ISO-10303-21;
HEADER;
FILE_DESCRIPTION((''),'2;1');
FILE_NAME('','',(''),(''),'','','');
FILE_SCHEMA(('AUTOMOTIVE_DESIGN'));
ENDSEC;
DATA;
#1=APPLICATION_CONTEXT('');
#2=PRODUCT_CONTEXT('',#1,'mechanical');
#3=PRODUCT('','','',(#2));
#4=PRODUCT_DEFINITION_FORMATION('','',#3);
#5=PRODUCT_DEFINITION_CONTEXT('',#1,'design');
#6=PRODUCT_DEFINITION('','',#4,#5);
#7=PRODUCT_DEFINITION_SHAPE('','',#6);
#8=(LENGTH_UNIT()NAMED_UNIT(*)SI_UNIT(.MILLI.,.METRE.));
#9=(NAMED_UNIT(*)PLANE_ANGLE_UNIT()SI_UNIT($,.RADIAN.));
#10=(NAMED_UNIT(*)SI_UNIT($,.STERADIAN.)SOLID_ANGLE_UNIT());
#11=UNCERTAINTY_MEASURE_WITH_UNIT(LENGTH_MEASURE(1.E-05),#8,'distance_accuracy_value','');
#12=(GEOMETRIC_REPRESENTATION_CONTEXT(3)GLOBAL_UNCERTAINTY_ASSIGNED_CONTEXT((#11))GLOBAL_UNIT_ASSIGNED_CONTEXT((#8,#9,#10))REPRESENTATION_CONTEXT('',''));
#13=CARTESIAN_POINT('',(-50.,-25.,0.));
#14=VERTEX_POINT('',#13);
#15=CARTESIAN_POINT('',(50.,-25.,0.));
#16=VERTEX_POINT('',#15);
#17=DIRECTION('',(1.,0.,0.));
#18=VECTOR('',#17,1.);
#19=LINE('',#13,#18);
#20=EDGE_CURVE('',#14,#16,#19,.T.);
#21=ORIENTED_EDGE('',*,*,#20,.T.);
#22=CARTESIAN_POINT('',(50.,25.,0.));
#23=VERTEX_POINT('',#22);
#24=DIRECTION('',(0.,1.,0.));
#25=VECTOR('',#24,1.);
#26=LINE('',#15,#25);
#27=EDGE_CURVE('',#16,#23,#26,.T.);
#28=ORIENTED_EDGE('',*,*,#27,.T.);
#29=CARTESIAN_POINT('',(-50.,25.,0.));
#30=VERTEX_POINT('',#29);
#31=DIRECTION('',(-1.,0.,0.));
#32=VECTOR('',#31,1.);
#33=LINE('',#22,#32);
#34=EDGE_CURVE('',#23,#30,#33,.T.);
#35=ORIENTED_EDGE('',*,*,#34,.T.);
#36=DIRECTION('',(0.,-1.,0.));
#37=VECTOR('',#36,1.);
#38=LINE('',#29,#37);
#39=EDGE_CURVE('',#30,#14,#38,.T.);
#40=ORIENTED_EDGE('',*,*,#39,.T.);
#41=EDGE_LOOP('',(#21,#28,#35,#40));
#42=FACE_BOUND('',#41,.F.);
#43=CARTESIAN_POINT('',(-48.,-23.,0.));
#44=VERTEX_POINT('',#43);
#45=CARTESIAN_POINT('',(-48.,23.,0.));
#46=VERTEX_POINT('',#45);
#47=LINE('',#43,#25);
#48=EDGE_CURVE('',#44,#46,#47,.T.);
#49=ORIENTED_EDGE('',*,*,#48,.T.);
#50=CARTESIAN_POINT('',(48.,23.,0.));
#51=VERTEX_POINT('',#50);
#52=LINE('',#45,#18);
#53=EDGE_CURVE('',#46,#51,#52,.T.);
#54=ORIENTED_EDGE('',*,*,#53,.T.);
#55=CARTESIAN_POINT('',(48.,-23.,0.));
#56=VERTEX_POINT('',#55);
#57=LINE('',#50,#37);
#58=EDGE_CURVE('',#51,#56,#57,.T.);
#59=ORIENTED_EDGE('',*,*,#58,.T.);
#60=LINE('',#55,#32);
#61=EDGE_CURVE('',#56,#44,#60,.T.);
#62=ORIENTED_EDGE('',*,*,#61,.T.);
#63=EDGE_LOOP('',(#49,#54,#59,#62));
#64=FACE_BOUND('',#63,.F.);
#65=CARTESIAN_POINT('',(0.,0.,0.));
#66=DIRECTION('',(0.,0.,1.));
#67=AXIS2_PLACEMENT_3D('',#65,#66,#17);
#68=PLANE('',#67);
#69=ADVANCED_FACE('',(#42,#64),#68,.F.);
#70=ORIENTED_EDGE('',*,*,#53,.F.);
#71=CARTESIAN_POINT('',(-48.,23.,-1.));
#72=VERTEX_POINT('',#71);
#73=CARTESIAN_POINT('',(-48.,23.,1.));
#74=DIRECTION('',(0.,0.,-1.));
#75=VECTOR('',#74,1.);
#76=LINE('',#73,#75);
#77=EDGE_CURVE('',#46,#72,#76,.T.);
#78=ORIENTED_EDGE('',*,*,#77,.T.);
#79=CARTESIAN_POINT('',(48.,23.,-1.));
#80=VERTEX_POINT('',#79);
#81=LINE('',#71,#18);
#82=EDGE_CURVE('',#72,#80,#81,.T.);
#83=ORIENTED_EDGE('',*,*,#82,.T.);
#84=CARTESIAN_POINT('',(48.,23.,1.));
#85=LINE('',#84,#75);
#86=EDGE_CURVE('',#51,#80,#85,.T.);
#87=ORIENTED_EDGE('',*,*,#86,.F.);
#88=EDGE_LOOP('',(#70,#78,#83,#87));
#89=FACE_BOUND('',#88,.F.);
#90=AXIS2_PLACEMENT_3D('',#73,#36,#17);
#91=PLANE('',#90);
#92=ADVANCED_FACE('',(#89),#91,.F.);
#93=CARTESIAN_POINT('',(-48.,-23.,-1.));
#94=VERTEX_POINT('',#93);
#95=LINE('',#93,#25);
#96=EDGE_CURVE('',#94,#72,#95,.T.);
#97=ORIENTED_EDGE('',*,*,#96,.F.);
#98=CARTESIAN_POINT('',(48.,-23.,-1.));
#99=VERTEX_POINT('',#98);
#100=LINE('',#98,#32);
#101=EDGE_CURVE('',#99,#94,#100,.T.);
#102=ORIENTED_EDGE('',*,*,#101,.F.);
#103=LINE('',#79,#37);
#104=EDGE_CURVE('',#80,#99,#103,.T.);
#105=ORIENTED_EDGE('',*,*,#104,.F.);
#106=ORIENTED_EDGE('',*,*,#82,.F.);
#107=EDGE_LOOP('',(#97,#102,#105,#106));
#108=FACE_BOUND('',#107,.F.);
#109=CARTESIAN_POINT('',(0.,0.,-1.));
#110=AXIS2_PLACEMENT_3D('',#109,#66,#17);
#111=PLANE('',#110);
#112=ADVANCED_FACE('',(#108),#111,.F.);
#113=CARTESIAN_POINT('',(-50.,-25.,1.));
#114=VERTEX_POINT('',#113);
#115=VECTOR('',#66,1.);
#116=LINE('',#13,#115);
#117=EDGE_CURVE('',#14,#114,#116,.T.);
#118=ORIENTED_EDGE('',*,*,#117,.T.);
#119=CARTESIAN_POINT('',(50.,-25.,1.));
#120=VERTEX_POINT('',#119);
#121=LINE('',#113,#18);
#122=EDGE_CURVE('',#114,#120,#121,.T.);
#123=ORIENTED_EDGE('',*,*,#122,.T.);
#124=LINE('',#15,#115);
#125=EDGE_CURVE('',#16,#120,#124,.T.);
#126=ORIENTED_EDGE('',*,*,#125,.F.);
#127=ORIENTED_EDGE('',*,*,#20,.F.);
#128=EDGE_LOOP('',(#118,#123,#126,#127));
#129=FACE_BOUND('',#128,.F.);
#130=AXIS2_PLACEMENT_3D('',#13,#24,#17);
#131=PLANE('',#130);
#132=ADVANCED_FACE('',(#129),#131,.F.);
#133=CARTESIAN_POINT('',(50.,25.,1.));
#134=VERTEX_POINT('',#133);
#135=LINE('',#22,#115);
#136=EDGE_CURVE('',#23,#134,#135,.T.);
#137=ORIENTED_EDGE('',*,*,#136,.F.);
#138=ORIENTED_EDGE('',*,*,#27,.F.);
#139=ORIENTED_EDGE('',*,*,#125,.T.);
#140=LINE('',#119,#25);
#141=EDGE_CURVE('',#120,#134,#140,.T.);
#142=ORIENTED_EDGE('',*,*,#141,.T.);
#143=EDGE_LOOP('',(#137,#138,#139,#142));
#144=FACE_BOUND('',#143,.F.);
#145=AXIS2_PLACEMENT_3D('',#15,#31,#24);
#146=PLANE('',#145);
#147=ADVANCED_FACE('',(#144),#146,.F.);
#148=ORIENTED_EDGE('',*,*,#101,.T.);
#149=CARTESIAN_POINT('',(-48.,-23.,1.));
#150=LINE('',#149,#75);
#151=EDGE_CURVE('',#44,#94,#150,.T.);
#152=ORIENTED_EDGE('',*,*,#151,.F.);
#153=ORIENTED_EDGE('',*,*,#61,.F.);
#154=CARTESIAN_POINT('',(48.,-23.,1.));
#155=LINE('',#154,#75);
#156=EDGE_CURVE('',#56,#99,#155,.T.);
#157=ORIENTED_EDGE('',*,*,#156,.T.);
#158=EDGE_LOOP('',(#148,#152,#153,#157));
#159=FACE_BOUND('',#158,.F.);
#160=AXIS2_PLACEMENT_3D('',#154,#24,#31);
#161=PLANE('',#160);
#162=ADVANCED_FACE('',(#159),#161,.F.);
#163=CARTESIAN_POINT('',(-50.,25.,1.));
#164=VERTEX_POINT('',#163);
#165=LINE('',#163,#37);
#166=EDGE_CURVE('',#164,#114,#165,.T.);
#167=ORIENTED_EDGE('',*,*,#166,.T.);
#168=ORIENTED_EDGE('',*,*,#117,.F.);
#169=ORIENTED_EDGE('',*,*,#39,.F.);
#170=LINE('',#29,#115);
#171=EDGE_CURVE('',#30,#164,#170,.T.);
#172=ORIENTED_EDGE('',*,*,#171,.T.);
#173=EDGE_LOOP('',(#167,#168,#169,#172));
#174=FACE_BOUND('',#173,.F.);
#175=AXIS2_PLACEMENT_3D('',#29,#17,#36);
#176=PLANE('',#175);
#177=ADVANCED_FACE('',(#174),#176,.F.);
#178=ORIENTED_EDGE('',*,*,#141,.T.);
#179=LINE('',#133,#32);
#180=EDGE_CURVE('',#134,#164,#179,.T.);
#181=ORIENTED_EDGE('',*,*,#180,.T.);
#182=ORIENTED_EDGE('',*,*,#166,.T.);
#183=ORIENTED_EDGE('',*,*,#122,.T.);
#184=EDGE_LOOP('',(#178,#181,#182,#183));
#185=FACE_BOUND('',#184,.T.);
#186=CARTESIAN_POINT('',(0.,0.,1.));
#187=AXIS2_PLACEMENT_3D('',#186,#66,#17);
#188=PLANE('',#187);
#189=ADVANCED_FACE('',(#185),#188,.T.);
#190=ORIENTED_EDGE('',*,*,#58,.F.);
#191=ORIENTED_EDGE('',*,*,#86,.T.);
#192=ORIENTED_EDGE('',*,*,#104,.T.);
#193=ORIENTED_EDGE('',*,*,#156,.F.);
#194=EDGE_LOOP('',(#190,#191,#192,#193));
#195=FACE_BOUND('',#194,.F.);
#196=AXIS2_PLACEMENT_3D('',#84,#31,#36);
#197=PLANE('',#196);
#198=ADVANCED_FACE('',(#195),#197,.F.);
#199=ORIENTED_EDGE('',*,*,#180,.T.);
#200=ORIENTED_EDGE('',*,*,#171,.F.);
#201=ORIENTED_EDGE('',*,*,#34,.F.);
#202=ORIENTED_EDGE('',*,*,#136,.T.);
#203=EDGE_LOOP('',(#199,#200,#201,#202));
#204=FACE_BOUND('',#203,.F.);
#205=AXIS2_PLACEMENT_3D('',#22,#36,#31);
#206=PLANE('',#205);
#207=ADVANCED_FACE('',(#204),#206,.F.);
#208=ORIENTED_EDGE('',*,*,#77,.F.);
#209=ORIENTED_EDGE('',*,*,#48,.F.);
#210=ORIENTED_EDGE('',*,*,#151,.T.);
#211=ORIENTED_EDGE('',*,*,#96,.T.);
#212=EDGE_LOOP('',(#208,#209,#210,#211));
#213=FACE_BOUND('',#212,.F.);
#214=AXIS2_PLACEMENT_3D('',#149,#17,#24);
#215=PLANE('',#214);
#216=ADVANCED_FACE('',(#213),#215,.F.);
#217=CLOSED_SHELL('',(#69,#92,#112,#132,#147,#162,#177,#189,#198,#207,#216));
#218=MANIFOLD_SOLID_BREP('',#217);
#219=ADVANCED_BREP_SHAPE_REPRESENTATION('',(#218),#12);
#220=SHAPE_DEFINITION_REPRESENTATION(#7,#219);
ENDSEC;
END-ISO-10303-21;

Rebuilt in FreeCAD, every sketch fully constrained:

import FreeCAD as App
import Part
import Sketcher

V = App.Vector
Q = App.Units.Quantity

doc = App.newDocument("Part")
body = doc.addObject("PartDesign::Body", "Body")

sketch1 = body.newObject("Sketcher::SketchObject", "Sketch")
sketch1.AttachmentSupport = (doc.getObject("XY_Plane"), [""])
sketch1.MapMode = "FlatFace"
sketch1.addGeometry([
    Part.LineSegment(V(-50, -25, 0), V(50, -25, 0)),
    Part.LineSegment(V(50, -25, 0), V(50, 25, 0)),
    Part.LineSegment(V(50, 25, 0), V(-50, 25, 0)),
    Part.LineSegment(V(-50, 25, 0), V(-50, -25, 0)),
    Part.LineSegment(V(-48, -23, 0), V(-48, 23, 0)),
    Part.LineSegment(V(-48, 23, 0), V(48, 23, 0)),
    Part.LineSegment(V(48, 23, 0), V(48, -23, 0)),
    Part.LineSegment(V(48, -23, 0), V(-48, -23, 0)),
], False)
sketch1.addConstraint([
    Sketcher.Constraint("Coincident", 0, 2, 1, 1),
    Sketcher.Constraint("Coincident", 1, 2, 2, 1),
    Sketcher.Constraint("Coincident", 2, 2, 3, 1),
    Sketcher.Constraint("Coincident", 3, 2, 0, 1),
    Sketcher.Constraint("Coincident", 4, 2, 5, 1),
    Sketcher.Constraint("Coincident", 5, 2, 6, 1),
    Sketcher.Constraint("Coincident", 6, 2, 7, 1),
    Sketcher.Constraint("Coincident", 7, 2, 4, 1),
    Sketcher.Constraint("Horizontal", 0),
    Sketcher.Constraint("Vertical", 1),
    Sketcher.Constraint("Horizontal", 2),
    Sketcher.Constraint("Vertical", 3),
    Sketcher.Constraint("Vertical", 4),
    Sketcher.Constraint("Horizontal", 5),
    Sketcher.Constraint("Vertical", 6),
    Sketcher.Constraint("Horizontal", 7),
    Sketcher.Constraint("Symmetric", 0, 2, 2, 2, -1, 1),
    Sketcher.Constraint("Symmetric", 4, 2, 6, 2, -1, 1),
    Sketcher.Constraint("DistanceX", 0, 1, 0, 2, Q("100 mm")),
    Sketcher.Constraint("DistanceX", 5, 1, 5, 2, Q("96 mm")),
    Sketcher.Constraint("DistanceY", 1, 1, 1, 2, Q("50 mm")),
    Sketcher.Constraint("DistanceY", 4, 1, 4, 2, Q("46 mm")),
])
pad1 = body.newObject("PartDesign::Pad", "Pad")
pad1.Profile = sketch1
pad1.Length = 1

sketch2 = body.newObject("Sketcher::SketchObject", "Sketch001")
sketch2.AttachmentSupport = (doc.getObject("XY_Plane"), [""])
sketch2.MapMode = "FlatFace"
sketch2.AttachmentOffset = App.Placement(V(0, 0, 1), App.Rotation())
sketch2.addGeometry([
    Part.LineSegment(V(48, 23, 0), V(-48, 23, 0)),
    Part.LineSegment(V(-48, 23, 0), V(-48, -23, 0)),
    Part.LineSegment(V(-48, -23, 0), V(48, -23, 0)),
    Part.LineSegment(V(48, -23, 0), V(48, 23, 0)),
], False)
sketch2.addConstraint([
    Sketcher.Constraint("Coincident", 0, 2, 1, 1),
    Sketcher.Constraint("Coincident", 1, 2, 2, 1),
    Sketcher.Constraint("Coincident", 2, 2, 3, 1),
    Sketcher.Constraint("Coincident", 3, 2, 0, 1),
    Sketcher.Constraint("Horizontal", 0),
    Sketcher.Constraint("Vertical", 1),
    Sketcher.Constraint("Horizontal", 2),
    Sketcher.Constraint("Vertical", 3),
    Sketcher.Constraint("Symmetric", 0, 2, 2, 2, -1, 1),
    Sketcher.Constraint("DistanceX", 0, 2, 0, 1, Q("96 mm")),
    Sketcher.Constraint("DistanceY", 1, 2, 1, 1, Q("46 mm")),
])
pad2 = body.newObject("PartDesign::Pad", "Pad001")
pad2.Profile = sketch2
pad2.Length = 2
pad2.Reversed = True

doc.recompute()
